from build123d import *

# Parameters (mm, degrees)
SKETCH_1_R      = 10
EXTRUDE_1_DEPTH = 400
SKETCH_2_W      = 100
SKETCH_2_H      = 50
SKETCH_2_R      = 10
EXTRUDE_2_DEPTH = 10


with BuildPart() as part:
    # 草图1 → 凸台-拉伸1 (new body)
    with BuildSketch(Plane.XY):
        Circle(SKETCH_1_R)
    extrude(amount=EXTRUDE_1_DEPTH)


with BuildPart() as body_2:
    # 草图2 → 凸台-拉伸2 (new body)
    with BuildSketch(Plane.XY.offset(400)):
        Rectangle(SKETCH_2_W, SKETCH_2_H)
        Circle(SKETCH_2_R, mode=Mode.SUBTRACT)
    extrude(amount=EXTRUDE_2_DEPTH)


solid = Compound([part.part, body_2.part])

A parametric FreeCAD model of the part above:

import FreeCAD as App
import Part
import Sketcher
from FreeCAD import Vector

doc = App.newDocument("Part")
body = doc.addObject("PartDesign::Body", "Body")

sketch1 = body.newObject("Sketcher::SketchObject", "Sketch")
sketch1.AttachmentSupport = (doc.getObject("XY_Plane"), [""])
sketch1.MapMode = "FlatFace"
sketch1.addGeometry(Part.Circle(Vector(0, 0, 0), Vector(0, 0, 1), 10), False)
sketch1.addConstraint([
    Sketcher.Constraint("Coincident", 0, 3, -1, 1),
    Sketcher.Constraint("Diameter", 0, 20.0),
])
pad1 = body.newObject("PartDesign::Pad", "Pad")
pad1.Profile = sketch1
pad1.Length = 400
body2 = doc.addObject("PartDesign::Body", "Body001")

sketch2 = body2.newObject("Sketcher::SketchObject", "Sketch001")
sketch2.AttachmentSupport = (doc.getObject("XY_Plane001"), [""])
sketch2.MapMode = "FlatFace"
sketch2.AttachmentOffset = App.Placement(Vector(0, 0, 400), App.Rotation())
sketch2.addGeometry([
    Part.LineSegment(Vector(-50, 25, 0), Vector(-50, -25, 0)),
    Part.LineSegment(Vector(-50, -25, 0), Vector(50, -25, 0)),
    Part.LineSegment(Vector(50, -25, 0), Vector(50, 25, 0)),
    Part.LineSegment(Vector(50, 25, 0), Vector(-50, 25, 0)),
    Part.Circle(Vector(0, 0, 0), Vector(0, 0, 1), 10),
], False)
sketch2.addConstraint([
    Sketcher.Constraint("Coincident", 0, 2, 1, 1),
    Sketcher.Constraint("Coincident", 1, 2, 2, 1),
    Sketcher.Constraint("Coincident", 2, 2, 3, 1),
    Sketcher.Constraint("Coincident", 3, 2, 0, 1),
    Sketcher.Constraint("Vertical", 0),
    Sketcher.Constraint("Horizontal", 1),
    Sketcher.Constraint("Vertical", 2),
    Sketcher.Constraint("Horizontal", 3),
    Sketcher.Constraint("Coincident", 4, 3, -1, 1),
    Sketcher.Constraint("Symmetric", 0, 2, 2, 2, -1, 1),
    Sketcher.Constraint("Diameter", 4, 20.0),
    Sketcher.Constraint("DistanceX", 1, 1, 1, 2, 100.0),
    Sketcher.Constraint("DistanceY", 0, 2, 0, 1, 50.0),
])
pad2 = body2.newObject("PartDesign::Pad", "Pad001")
pad2.Profile = sketch2
pad2.Length = 10

doc.recompute()
